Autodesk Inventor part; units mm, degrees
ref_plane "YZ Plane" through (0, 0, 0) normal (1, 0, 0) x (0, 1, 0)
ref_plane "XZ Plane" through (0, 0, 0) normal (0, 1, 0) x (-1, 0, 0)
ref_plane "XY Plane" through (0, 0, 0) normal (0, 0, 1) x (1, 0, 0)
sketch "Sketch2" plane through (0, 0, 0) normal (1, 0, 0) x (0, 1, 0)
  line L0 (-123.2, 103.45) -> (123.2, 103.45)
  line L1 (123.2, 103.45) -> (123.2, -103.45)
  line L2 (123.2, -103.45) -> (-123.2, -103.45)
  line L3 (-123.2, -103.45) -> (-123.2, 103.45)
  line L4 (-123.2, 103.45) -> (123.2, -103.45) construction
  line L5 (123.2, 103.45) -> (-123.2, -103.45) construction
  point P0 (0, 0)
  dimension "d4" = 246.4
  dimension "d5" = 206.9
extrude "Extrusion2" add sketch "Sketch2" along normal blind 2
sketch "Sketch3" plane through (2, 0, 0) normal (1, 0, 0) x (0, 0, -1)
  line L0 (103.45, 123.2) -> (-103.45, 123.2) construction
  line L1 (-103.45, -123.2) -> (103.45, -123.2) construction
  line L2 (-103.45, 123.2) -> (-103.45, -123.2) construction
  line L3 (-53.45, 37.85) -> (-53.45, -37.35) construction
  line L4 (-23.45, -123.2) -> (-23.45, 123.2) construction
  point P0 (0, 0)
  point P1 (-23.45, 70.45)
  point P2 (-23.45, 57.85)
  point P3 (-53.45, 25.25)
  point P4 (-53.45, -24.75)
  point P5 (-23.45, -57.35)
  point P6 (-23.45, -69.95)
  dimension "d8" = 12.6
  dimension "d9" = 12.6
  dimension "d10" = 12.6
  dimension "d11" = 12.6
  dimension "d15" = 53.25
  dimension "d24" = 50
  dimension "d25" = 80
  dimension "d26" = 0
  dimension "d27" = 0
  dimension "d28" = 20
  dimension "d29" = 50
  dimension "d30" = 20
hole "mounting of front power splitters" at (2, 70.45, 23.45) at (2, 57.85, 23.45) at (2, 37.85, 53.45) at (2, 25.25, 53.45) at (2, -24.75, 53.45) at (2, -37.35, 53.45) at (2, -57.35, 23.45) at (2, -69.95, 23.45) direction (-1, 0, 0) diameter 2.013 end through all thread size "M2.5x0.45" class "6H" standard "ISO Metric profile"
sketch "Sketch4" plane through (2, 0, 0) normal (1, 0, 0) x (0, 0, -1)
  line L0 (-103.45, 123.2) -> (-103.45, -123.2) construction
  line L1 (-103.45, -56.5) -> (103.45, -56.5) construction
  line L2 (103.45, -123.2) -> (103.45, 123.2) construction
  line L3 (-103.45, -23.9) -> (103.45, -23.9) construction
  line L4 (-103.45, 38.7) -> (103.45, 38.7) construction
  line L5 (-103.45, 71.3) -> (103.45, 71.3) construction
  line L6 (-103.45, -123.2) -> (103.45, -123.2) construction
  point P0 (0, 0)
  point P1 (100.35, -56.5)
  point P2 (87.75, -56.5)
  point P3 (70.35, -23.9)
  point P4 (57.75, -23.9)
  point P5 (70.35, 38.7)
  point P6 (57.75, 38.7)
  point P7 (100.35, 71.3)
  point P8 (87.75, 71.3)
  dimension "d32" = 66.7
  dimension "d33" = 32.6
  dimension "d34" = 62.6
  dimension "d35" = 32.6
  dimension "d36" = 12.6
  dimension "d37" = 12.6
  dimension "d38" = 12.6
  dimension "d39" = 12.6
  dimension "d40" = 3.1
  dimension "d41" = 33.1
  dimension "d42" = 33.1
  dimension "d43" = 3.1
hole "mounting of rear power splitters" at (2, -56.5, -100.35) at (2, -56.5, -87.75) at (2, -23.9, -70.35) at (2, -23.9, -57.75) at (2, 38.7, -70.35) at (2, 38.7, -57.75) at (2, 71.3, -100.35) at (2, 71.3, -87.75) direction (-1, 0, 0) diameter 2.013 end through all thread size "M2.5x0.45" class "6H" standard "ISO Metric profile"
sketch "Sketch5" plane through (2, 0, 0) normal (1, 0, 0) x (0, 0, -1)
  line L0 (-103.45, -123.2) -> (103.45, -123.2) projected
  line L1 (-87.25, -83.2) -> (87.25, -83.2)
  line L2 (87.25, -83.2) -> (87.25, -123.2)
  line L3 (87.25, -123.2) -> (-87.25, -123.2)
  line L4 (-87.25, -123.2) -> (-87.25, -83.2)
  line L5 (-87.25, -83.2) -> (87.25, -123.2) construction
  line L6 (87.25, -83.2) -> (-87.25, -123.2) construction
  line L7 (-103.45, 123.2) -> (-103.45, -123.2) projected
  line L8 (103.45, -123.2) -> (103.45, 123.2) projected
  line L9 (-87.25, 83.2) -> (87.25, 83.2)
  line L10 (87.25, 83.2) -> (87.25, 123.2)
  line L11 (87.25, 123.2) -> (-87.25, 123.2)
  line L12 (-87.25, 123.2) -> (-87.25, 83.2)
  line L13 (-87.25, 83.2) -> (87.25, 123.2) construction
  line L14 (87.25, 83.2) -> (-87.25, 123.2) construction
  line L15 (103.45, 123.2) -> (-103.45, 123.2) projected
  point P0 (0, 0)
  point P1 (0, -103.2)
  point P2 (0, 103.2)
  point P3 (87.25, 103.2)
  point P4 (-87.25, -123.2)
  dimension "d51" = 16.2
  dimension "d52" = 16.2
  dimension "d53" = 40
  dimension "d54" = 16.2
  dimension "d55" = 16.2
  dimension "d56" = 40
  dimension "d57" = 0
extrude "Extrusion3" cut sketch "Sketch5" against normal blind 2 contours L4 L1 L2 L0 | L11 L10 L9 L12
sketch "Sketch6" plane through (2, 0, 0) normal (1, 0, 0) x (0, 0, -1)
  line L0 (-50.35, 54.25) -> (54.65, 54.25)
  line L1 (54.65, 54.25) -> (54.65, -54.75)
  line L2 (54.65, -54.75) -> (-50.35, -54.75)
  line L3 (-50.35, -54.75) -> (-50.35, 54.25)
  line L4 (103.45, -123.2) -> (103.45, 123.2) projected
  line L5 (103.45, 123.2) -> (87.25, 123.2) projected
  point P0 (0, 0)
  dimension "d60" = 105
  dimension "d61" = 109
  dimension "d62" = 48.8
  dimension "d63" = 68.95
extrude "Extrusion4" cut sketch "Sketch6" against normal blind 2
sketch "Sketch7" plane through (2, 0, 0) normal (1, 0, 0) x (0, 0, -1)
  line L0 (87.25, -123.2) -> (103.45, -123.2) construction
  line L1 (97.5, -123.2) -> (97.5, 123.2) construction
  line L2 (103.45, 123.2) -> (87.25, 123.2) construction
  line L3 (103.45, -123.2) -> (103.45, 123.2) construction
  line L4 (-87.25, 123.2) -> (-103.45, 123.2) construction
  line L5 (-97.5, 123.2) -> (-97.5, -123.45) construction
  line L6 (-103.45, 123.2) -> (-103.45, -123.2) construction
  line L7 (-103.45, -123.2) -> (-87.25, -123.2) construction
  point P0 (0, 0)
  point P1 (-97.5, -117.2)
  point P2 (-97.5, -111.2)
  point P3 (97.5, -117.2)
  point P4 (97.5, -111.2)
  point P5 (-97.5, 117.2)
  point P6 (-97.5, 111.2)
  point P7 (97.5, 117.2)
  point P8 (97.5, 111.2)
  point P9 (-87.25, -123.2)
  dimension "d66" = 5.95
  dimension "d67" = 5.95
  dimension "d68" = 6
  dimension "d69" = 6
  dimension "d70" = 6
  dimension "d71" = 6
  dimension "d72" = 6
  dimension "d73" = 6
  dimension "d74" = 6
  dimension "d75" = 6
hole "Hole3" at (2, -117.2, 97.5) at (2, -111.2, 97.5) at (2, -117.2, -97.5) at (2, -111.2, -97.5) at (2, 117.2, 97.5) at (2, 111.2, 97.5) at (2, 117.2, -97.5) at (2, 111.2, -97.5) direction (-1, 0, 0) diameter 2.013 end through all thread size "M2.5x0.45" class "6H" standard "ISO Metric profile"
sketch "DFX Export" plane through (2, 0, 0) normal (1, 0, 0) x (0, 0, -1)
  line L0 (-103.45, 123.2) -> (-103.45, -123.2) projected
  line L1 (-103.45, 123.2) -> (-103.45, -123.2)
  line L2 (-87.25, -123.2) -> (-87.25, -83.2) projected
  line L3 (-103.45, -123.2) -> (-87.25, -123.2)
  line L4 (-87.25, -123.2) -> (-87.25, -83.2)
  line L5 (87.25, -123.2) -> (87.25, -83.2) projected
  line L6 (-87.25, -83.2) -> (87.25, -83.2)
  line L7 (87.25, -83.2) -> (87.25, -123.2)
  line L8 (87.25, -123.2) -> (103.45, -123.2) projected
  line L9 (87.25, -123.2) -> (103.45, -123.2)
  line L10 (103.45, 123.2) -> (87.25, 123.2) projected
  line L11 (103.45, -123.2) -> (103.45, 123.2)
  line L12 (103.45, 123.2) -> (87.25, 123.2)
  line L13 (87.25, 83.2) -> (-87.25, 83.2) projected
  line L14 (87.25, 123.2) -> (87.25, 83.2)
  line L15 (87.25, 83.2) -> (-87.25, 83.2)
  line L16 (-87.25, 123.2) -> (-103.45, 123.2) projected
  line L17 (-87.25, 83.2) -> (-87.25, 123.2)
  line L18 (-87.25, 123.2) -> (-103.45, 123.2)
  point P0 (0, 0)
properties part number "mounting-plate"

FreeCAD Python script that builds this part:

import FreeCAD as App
import Part
import Sketcher
from FreeCAD import Vector
Q = App.Units.Quantity

doc = App.newDocument("Part")
body = doc.addObject("PartDesign::Body", "Body")

# Sketch on YZ plane
sketch1 = body.newObject("Sketcher::SketchObject", "Sketch")
sketch1.AttachmentSupport = (doc.getObject("YZ_Plane"), [""])
sketch1.MapMode = "FlatFace"
sketch1.addGeometry([
    Part.LineSegment(Vector(123.2, 103.45, 0), Vector(-123.2, 103.45, 0)),
    Part.LineSegment(Vector(-123.2, 103.45, 0), Vector(-123.2, -103.45, 0)),
    Part.LineSegment(Vector(-123.2, -103.45, 0), Vector(123.2, -103.45, 0)),
    Part.LineSegment(Vector(123.2, -103.45, 0), Vector(123.2, 103.45, 0)),
], False)
sketch1.addConstraint([
    Sketcher.Constraint("Coincident", 0, 2, 1, 1),
    Sketcher.Constraint("Coincident", 1, 2, 2, 1),
    Sketcher.Constraint("Coincident", 2, 2, 3, 1),
    Sketcher.Constraint("Coincident", 3, 2, 0, 1),
    Sketcher.Constraint("Horizontal", 0),
    Sketcher.Constraint("Vertical", 1),
    Sketcher.Constraint("Horizontal", 2),
    Sketcher.Constraint("Vertical", 3),
    Sketcher.Constraint("Symmetric", 0, 2, 2, 2, -1, 1),
    Sketcher.Constraint("DistanceX", 0, 2, 0, 1, Q("246.4 mm")),
    Sketcher.Constraint("DistanceY", 1, 2, 1, 1, Q("206.9 mm")),
])
pad1 = body.newObject("PartDesign::Pad", "Pad")
pad1.Profile = sketch1
pad1.Length = 2

# Sketch on YZ plane
sketch2 = body.newObject("Sketcher::SketchObject", "Sketch001")
sketch2.AttachmentSupport = (doc.getObject("YZ_Plane"), [""])
sketch2.MapMode = "FlatFace"
sketch2.AttachmentOffset = App.Placement(Vector(0, 0, 2), App.Rotation())
sketch2.addGeometry([
    Part.Circle(Vector(70.45, 23.45, 0), Vector(0, 0, 1), 1.0065),  # 0
    Part.Circle(Vector(57.85, 23.45, 0), Vector(0, 0, 1), 1.0065),  # 1
    Part.Circle(Vector(37.85, 53.45, 0), Vector(0, 0, 1), 1.0065),  # 2
    Part.Circle(Vector(25.25, 53.45, 0), Vector(0, 0, 1), 1.0065),  # 3
    Part.Circle(Vector(-24.75, 53.45, 0), Vector(0, 0, 1), 1.0065),  # 4
    Part.Circle(Vector(-37.35, 53.45, 0), Vector(0, 0, 1), 1.0065),  # 5
    Part.Circle(Vector(-57.35, 23.45, 0), Vector(0, 0, 1), 1.0065),  # 6
    Part.Circle(Vector(-69.95, 23.45, 0), Vector(0, 0, 1), 1.0065),  # 7
], False)
sketch2.addConstraint([
    Sketcher.Constraint("Equal", 0, 1),
    Sketcher.Constraint("Equal", 1, 2),
    Sketcher.Constraint("Equal", 2, 3),
    Sketcher.Constraint("Equal", 3, 4),
    Sketcher.Constraint("Equal", 4, 5),
    Sketcher.Constraint("Equal", 5, 6),
    Sketcher.Constraint("Equal", 6, 7),
    Sketcher.Constraint("Horizontal", 0, 3, 1, 3),
    Sketcher.Constraint("Horizontal", 2, 3, 3, 3),
    Sketcher.Constraint("Horizontal", 3, 3, 4, 3),
    Sketcher.Constraint("Horizontal", 4, 3, 5, 3),
    Sketcher.Constraint("Horizontal", 1, 3, 6, 3),
    Sketcher.Constraint("Horizontal", 6, 3, 7, 3),
    Sketcher.Constraint("Diameter", 0, Q("2.013 mm")),
    Sketcher.Constraint("DistanceX", 2, 3, 1, 3, Q("20 mm")),
    Sketcher.Constraint("DistanceY", 1, 3, 2, 3, Q("30 mm")),
    Sketcher.Constraint("DistanceX", 4, 3, 3, 3, Q("50 mm")),
    Sketcher.Constraint("DistanceX", 6, 3, 5, 3, Q("20 mm")),
    Sketcher.Constraint("DistanceX", 1, 3, 0, 3, Q("12.6 mm")),
    Sketcher.Constraint("DistanceX", 3, 3, 2, 3, Q("12.6 mm")),
    Sketcher.Constraint("DistanceX", 5, 3, 4, 3, Q("12.6 mm")),
    Sketcher.Constraint("DistanceX", 7, 3, 6, 3, Q("12.6 mm")),
    Sketcher.Constraint("DistanceX", -1, 1, 0, 3, Q("70.45 mm")),
    Sketcher.Constraint("DistanceY", -1, 1, 0, 3, Q("23.45 mm")),
])
doc.recompute()
hole = body.newObject("PartDesign::Hole", "Hole")
hole.Profile = sketch2
hole.ThreadType = "None"
hole.Diameter = 2.013
hole.DepthType = "ThroughAll"

# Sketch on YZ plane
sketch3 = body.newObject("Sketcher::SketchObject", "Sketch002")
sketch3.AttachmentSupport = (doc.getObject("YZ_Plane"), [""])
sketch3.MapMode = "FlatFace"
sketch3.AttachmentOffset = App.Placement(Vector(0, 0, 2), App.Rotation())
sketch3.addGeometry([
    Part.Circle(Vector(-56.5, -100.35, 0), Vector(0, 0, 1), 1.0065),  # 0
    Part.Circle(Vector(-56.5, -87.75, 0), Vector(0, 0, 1), 1.0065),  # 1
    Part.Circle(Vector(-23.9, -70.35, 0), Vector(0, 0, 1), 1.0065),  # 2
    Part.Circle(Vector(-23.9, -57.75, 0), Vector(0, 0, 1), 1.0065),  # 3
    Part.Circle(Vector(38.7, -70.35, 0), Vector(0, 0, 1), 1.0065),  # 4
    Part.Circle(Vector(38.7, -57.75, 0), Vector(0, 0, 1), 1.0065),  # 5
    Part.Circle(Vector(71.3, -100.35, 0), Vector(0, 0, 1), 1.0065),  # 6
    Part.Circle(Vector(71.3, -87.75, 0), Vector(0, 0, 1), 1.0065),  # 7
], False)
sketch3.addConstraint([
    Sketcher.Constraint("Equal", 0, 1),
    Sketcher.Constraint("Equal", 1, 2),
    Sketcher.Constraint("Equal", 2, 3),
    Sketcher.Constraint("Equal", 3, 4),
    Sketcher.Constraint("Equal", 4, 5),
    Sketcher.Constraint("Equal", 5, 6),
    Sketcher.Constraint("Equal", 6, 7),
    Sketcher.Constraint("Horizontal", 2, 3, 4, 3),
    Sketcher.Constraint("Horizontal", 3, 3, 5, 3),
    Sketcher.Constraint("Horizontal", 0, 3, 6, 3),
    Sketcher.Constraint("Horizontal", 1, 3, 7, 3),
    Sketcher.Constraint("Vertical", 0, 3, 1, 3),
    Sketcher.Constraint("Vertical", 2, 3, 3, 3),
    Sketcher.Constraint("Vertical", 4, 3, 5, 3),
    Sketcher.Constraint("Vertical", 6, 3, 7, 3),
    Sketcher.Constraint("Diameter", 0, Q("2.013 mm")),
    Sketcher.Constraint("DistanceY", 0, 3, 2, 3, Q("30 mm")),
    Sketcher.Constraint("DistanceY", 1, 3, 3, 3, Q("30 mm")),
    Sketcher.Constraint("DistanceX", 0, 3, -1, 1, Q("56.5 mm")),
    Sketcher.Constraint("DistanceX", 2, 3, -1, 1, Q("23.9 mm")),
    Sketcher.Constraint("DistanceX", -1, 1, 4, 3, Q("38.7 mm")),
    Sketcher.Constraint("DistanceX", -1, 1, 6, 3, Q("71.3 mm")),
    Sketcher.Constraint("DistanceY", 0, 3, 1, 3, Q("12.6 mm")),
    Sketcher.Constraint("DistanceY", 0, 3, -1, 1, Q("100.35 mm")),
])
doc.recompute()
hole2 = body.newObject("PartDesign::Hole", "Hole001")
hole2.Profile = sketch3
hole2.ThreadType = "None"
hole2.Diameter = 2.013
hole2.DepthType = "ThroughAll"

# Sketch on YZ plane
sketch4 = body.newObject("Sketcher::SketchObject", "Sketch003")
sketch4.AttachmentSupport = (doc.getObject("YZ_Plane"), [""])
sketch4.MapMode = "FlatFace"
sketch4.AttachmentOffset = App.Placement(Vector(0, 0, 2), App.Rotation())
sketch4.addGeometry([
    Part.LineSegment(Vector(-83.2, 87.25, 0), Vector(-123.2, 87.25, 0)),  # 0
    Part.LineSegment(Vector(-123.2, 87.25, 0), Vector(-123.2, -87.25, 0)),  # 1
    Part.LineSegment(Vector(-123.2, -87.25, 0), Vector(-83.2, -87.25, 0)),  # 2
    Part.LineSegment(Vector(-83.2, -87.25, 0), Vector(-83.2, 87.25, 0)),  # 3
    Part.LineSegment(Vector(123.2, -87.25, 0), Vector(123.2, 87.25, 0)),  # 4
    Part.LineSegment(Vector(123.2, 87.25, 0), Vector(83.2, 87.25, 0)),  # 5
    Part.LineSegment(Vector(83.2, 87.25, 0), Vector(83.2, -87.25, 0)),  # 6
    Part.LineSegment(Vector(83.2, -87.25, 0), Vector(123.2, -87.25, 0)),  # 7
], False)
sketch4.addConstraint([
    Sketcher.Constraint("Coincident", 0, 2, 1, 1),
    Sketcher.Constraint("Coincident", 1, 2, 2, 1),
    Sketcher.Constraint("Coincident", 2, 2, 3, 1),
    Sketcher.Constraint("Coincident", 3, 2, 0, 1),
    Sketcher.Constraint("Coincident", 4, 2, 5, 1),
    Sketcher.Constraint("Coincident", 5, 2, 6, 1),
    Sketcher.Constraint("Coincident", 6, 2, 7, 1),
    Sketcher.Constraint("Coincident", 7, 2, 4, 1),
    Sketcher.Constraint("Horizontal", 0),
    Sketcher.Constraint("Vertical", 1),
    Sketcher.Constraint("Horizontal", 2),
    Sketcher.Constraint("Vertical", 3),
    Sketcher.Constraint("Vertical", 4),
    Sketcher.Constraint("Horizontal", 5),
    Sketcher.Constraint("Vertical", 6),
    Sketcher.Constraint("Horizontal", 7),
    Sketcher.Constraint("Symmetric", 1, 2, 4, 2, -1, 1),
    Sketcher.Constraint("Symmetric", 3, 2, 6, 2, -1, 1),
    Sketcher.Constraint("Horizontal", 3, 2, 4, 2),
    Sketcher.Constraint("DistanceX", 0, 2, 0, 1, Q("40 mm")),
    Sketcher.Constraint("DistanceY", 1, 2, 1, 1, Q("174.5 mm")),
    Sketcher.Constraint("DistanceX", 0, 2, -1, 1, Q("123.2 mm")),
])
pocket1 = body.newObject("PartDesign::Pocket", "Pocket")
pocket1.Profile = sketch4
pocket1.Length = 2

# Sketch on YZ plane
sketch5 = body.newObject("Sketcher::SketchObject", "Sketch004")
sketch5.AttachmentSupport = (doc.getObject("YZ_Plane"), [""])
sketch5.MapMode = "FlatFace"
sketch5.AttachmentOffset = App.Placement(Vector(0, 0, 2), App.Rotation())
sketch5.addGeometry([
    Part.LineSegment(Vector(54.25, -54.65, 0), Vector(54.25, 50.35, 0)),
    Part.LineSegment(Vector(54.25, 50.35, 0), Vector(-54.75, 50.35, 0)),
    Part.LineSegment(Vector(-54.75, 50.35, 0), Vector(-54.75, -54.65, 0)),
    Part.LineSegment(Vector(-54.75, -54.65, 0), Vector(54.25, -54.65, 0)),
], False)
sketch5.addConstraint([
    Sketcher.Constraint("Coincident", 0, 2, 1, 1),
    Sketcher.Constraint("Coincident", 1, 2, 2, 1),
    Sketcher.Constraint("Coincident", 2, 2, 3, 1),
    Sketcher.Constraint("Coincident", 3, 2, 0, 1),
    Sketcher.Constraint("Vertical", 0),
    Sketcher.Constraint("Horizontal", 1),
    Sketcher.Constraint("Vertical", 2),
    Sketcher.Constraint("Horizontal", 3),
    Sketcher.Constraint("DistanceX", 1, 2, 1, 1, Q("109 mm")),
    Sketcher.Constraint("DistanceY", 0, 1, 0, 2, Q("105 mm")),
    Sketcher.Constraint("DistanceX", -1, 1, 0, 2, Q("54.25 mm")),
    Sketcher.Constraint("DistanceY", -1, 1, 0, 2, Q("50.35 mm")),
])
pocket2 = body.newObject("PartDesign::Pocket", "Pocket001")
pocket2.Profile = sketch5
pocket2.Length = 2

# Sketch on YZ plane
sketch6 = body.newObject("Sketcher::SketchObject", "Sketch005")
sketch6.AttachmentSupport = (doc.getObject("YZ_Plane"), [""])
sketch6.MapMode = "FlatFace"
sketch6.AttachmentOffset = App.Placement(Vector(0, 0, 2), App.Rotation())
sketch6.addGeometry([
    Part.Circle(Vector(-117.2, 97.5, 0), Vector(0, 0, 1), 1.0065),  # 0
    Part.Circle(Vector(-111.2, 97.5, 0), Vector(0, 0, 1), 1.0065),  # 1
    Part.Circle(Vector(-117.2, -97.5, 0), Vector(0, 0, 1), 1.0065),  # 2
    Part.Circle(Vector(-111.2, -97.5, 0), Vector(0, 0, 1), 1.0065),  # 3
    Part.Circle(Vector(117.2, 97.5, 0), Vector(0, 0, 1), 1.0065),  # 4
    Part.Circle(Vector(111.2, 97.5, 0), Vector(0, 0, 1), 1.0065),  # 5
    Part.Circle(Vector(117.2, -97.5, 0), Vector(0, 0, 1), 1.0065),  # 6
    Part.Circle(Vector(111.2, -97.5, 0), Vector(0, 0, 1), 1.0065),  # 7
], False)
sketch6.addConstraint([
    Sketcher.Constraint("Equal", 0, 1),
    Sketcher.Constraint("Equal", 1, 2),
    Sketcher.Constraint("Equal", 2, 3),
    Sketcher.Constraint("Equal", 3, 4),
    Sketcher.Constraint("Equal", 4, 5),
    Sketcher.Constraint("Equal", 5, 6),
    Sketcher.Constraint("Equal", 6, 7),
    Sketcher.Constraint("Symmetric", 2, 3, 4, 3, -1, 1),
    Sketcher.Constraint("Symmetric", 3, 3, 5, 3, -1, 1),
    Sketcher.Constraint("Symmetric", 0, 3, 6, 3, -1, 1),
    Sketcher.Constraint("Symmetric", 1, 3, 7, 3, -1, 1),
    Sketcher.Constraint("Symmetric", 0, 3, 4, 3, -2),
    Sketcher.Constraint("Symmetric", 1, 3, 5, 3, -2),
    Sketcher.Constraint("Horizontal", 0, 3, 1, 3),
    Sketcher.Constraint("Diameter", 0, Q("2.013 mm")),
    Sketcher.Constraint("DistanceX", 0, 3, 1, 3, Q("6 mm")),
    Sketcher.Constraint("DistanceY", 2, 3, 0, 3, Q("195 mm")),
    Sketcher.Constraint("DistanceX", 0, 3, -1, 1, Q("117.2 mm")),
])
doc.recompute()
hole3 = body.newObject("PartDesign::Hole", "Hole002")
hole3.Profile = sketch6
hole3.ThreadType = "None"
hole3.Diameter = 2.013
hole3.DepthType = "ThroughAll"

doc.recompute()
